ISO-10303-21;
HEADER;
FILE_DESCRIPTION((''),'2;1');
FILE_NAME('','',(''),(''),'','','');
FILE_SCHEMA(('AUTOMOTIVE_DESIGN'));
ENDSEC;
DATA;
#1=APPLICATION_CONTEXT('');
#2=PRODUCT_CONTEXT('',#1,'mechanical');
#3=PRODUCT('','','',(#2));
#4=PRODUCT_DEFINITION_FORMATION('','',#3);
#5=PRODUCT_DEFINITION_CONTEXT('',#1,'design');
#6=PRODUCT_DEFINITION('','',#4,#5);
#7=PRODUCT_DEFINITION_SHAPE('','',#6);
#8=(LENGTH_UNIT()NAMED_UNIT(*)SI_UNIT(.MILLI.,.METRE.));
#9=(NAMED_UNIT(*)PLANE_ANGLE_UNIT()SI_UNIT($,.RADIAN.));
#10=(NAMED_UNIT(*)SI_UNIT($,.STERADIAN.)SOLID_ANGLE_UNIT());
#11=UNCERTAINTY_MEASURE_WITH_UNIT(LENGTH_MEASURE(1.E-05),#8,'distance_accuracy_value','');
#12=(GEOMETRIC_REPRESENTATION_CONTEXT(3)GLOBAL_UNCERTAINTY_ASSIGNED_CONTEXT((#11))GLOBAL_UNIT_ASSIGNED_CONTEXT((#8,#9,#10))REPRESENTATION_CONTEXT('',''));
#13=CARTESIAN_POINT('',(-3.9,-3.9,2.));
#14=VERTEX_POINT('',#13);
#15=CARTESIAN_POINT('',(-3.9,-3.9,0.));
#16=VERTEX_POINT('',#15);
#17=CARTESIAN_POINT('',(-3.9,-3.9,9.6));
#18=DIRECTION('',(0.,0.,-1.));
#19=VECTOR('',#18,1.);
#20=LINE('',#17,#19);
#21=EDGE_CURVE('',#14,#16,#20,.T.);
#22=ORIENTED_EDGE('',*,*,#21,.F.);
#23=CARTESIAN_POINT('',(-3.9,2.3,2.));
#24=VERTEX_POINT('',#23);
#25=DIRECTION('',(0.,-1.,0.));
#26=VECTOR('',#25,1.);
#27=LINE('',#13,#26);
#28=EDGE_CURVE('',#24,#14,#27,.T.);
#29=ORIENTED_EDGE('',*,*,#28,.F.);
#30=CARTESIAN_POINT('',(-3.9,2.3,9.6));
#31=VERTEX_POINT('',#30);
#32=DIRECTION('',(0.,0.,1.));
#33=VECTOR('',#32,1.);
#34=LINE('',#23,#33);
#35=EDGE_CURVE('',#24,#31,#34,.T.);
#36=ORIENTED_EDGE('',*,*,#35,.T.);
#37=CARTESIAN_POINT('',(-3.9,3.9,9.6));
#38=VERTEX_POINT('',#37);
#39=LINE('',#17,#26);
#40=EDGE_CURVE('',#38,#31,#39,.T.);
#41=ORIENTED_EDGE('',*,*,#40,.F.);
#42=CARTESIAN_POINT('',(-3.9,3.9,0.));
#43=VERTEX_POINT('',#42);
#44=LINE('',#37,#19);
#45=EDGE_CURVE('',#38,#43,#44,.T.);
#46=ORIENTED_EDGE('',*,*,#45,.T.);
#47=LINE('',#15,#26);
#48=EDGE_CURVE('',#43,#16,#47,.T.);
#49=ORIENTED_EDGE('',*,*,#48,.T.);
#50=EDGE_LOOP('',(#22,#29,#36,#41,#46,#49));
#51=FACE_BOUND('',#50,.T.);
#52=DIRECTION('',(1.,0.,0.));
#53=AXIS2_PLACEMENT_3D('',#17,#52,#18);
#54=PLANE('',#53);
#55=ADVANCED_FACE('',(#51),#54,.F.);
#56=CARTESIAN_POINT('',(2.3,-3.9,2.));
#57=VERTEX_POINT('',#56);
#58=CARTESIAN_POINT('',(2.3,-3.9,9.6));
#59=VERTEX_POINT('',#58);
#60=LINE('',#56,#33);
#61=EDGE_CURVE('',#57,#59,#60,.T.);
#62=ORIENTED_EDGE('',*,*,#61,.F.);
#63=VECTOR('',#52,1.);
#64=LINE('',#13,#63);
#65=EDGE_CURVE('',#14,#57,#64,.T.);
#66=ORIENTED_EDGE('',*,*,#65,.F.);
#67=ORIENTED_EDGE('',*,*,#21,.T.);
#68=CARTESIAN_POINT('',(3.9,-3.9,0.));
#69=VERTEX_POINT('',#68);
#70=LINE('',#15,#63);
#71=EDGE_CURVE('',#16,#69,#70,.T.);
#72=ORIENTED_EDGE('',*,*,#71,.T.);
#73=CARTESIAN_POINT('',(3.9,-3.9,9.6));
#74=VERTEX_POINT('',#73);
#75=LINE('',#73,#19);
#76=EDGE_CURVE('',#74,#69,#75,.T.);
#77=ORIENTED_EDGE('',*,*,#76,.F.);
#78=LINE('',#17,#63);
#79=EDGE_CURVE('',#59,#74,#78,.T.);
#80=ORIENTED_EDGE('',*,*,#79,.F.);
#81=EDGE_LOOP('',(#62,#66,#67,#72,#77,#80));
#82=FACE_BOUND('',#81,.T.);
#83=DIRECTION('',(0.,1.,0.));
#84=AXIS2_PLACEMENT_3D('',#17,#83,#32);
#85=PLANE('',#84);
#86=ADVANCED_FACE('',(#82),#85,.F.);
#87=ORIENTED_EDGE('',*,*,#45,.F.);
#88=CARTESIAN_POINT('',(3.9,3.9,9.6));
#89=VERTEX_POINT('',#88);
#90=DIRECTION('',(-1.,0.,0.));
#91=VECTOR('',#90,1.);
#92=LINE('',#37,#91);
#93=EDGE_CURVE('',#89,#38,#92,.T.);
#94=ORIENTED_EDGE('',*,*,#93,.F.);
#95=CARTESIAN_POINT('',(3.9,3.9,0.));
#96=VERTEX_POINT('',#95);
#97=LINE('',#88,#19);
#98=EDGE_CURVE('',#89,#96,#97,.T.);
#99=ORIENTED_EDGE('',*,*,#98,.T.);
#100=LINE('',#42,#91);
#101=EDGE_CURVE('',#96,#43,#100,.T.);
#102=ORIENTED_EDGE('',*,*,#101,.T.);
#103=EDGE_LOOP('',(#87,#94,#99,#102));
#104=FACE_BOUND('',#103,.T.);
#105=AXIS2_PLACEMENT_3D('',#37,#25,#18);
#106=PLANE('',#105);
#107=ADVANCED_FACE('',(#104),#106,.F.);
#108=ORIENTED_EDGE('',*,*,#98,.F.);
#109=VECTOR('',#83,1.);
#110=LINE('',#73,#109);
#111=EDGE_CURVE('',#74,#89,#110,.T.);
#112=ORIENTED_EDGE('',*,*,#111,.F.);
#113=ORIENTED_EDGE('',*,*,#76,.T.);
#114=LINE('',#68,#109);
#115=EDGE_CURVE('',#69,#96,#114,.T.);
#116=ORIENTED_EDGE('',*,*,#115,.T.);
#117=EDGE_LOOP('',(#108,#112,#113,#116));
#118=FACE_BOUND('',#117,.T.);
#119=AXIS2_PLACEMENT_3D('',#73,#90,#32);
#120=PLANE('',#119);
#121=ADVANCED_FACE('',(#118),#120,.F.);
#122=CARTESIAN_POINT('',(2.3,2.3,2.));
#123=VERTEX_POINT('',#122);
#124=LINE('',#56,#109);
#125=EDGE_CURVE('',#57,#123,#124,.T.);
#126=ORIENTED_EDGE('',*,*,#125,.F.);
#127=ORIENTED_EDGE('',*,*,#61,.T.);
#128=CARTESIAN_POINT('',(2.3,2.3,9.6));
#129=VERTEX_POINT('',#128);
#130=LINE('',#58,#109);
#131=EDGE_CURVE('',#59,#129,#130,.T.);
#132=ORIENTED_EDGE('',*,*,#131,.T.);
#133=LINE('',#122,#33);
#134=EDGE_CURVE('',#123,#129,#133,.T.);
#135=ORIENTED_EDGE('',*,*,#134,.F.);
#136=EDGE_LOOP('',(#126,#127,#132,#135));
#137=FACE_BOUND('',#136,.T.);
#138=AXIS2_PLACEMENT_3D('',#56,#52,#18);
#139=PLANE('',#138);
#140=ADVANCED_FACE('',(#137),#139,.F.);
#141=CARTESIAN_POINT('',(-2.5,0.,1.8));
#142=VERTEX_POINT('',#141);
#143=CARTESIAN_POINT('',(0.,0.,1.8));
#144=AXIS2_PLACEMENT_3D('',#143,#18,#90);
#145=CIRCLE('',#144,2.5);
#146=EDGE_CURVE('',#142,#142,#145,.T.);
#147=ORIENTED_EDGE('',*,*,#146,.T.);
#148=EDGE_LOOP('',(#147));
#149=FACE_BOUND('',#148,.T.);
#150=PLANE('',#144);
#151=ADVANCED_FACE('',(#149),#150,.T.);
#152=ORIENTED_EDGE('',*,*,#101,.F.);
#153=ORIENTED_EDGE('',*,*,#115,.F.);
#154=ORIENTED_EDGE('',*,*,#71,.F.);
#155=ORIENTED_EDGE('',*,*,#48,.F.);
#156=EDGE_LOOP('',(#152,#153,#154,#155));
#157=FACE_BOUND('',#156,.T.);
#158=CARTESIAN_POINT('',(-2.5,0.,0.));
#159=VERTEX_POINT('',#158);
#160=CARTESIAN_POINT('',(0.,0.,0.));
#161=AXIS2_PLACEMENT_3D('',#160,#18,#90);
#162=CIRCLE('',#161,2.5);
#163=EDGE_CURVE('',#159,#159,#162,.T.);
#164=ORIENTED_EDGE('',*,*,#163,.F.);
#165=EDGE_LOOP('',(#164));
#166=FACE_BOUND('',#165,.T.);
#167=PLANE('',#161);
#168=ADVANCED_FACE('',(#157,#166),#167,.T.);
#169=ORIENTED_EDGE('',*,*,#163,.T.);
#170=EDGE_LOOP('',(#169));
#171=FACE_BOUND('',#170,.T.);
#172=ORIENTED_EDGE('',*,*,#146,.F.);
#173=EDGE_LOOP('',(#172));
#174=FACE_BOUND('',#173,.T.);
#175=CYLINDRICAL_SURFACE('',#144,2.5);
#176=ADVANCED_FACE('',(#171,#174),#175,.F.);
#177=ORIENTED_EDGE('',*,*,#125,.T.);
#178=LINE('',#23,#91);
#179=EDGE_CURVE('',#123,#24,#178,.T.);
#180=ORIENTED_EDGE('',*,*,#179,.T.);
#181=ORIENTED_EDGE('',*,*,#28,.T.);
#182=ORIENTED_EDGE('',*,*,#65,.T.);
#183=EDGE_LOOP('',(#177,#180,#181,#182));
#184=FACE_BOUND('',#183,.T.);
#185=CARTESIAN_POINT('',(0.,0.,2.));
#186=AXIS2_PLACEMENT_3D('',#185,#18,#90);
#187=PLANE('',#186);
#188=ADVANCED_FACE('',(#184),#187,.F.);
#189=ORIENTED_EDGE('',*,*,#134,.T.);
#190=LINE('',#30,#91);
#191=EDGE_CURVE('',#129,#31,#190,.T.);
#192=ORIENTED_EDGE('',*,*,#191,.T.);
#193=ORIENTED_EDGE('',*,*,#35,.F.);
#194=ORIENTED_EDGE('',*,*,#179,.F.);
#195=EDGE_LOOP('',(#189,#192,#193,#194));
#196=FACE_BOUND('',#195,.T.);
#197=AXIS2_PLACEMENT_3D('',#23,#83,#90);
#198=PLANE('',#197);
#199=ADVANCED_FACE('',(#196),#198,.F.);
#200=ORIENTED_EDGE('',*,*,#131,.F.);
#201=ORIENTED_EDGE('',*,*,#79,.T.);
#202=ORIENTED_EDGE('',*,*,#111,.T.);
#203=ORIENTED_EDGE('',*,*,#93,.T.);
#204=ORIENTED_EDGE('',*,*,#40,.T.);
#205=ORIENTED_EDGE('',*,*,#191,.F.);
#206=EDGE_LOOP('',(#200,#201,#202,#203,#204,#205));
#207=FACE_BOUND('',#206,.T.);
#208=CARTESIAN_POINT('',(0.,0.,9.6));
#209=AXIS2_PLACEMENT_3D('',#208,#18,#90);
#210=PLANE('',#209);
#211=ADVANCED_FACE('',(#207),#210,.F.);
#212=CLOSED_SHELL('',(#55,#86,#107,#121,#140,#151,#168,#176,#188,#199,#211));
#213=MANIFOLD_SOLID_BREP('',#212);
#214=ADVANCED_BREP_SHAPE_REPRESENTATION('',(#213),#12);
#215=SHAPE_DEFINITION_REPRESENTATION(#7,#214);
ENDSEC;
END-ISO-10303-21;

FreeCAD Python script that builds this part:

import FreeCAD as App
import Part
import Sketcher
from FreeCAD import Vector
Q = App.Units.Quantity


def add_polygon(sketch, points):
    """Adds a closed chain of lines whose ends are joined by coincident constraints."""
    first, n = sketch.GeometryCount, len(points)
    for a, b in zip(points, points[1:] + points[:1]):
        sketch.addGeometry(Part.LineSegment(App.Vector(*a, 0), App.Vector(*b, 0)), False)
    for i in range(n):
        sketch.addConstraint(Sketcher.Constraint("Coincident", first + i, 2, first + (i + 1) % n, 1))

doc = App.newDocument("Part")
body = doc.addObject("PartDesign::Body", "Body")

# Sketch on XY plane
sketch1 = body.newObject("Sketcher::SketchObject", "Sketch")
sketch1.AttachmentSupport = (doc.getObject("XY_Plane"), [""])
sketch1.MapMode = "FlatFace"
add_polygon(sketch1, [(-4, 4), (-4, -4), (4, -4), (4, 4)])  # lines 0-3
sketch1.addConstraint([
    Sketcher.Constraint("Vertical", 0),
    Sketcher.Constraint("Horizontal", 1),
    Sketcher.Constraint("Vertical", 2),
    Sketcher.Constraint("Horizontal", 3),
    Sketcher.Constraint("Symmetric", 0, 2, 2, 2, -1, 1),
    Sketcher.Constraint("Equal", 3, 0),
    Sketcher.Constraint("DistanceX", 1, 1, 1, 2, Q("7.8 mm")),
])
pad1 = body.newObject("PartDesign::Pad", "Pad")
pad1.Profile = sketch1
pad1.Length = 9.6

# Sketch on XY plane
sketch2 = body.newObject("Sketcher::SketchObject", "Sketch001")
sketch2.AttachmentSupport = (doc.getObject("XY_Plane"), [""])
sketch2.MapMode = "FlatFace"
sketch2.AttachmentOffset = App.Placement(Vector(0, 0, 9.6), App.Rotation())
add_polygon(sketch2, [(-4, 2), (-4, -4), (2, -4), (2, 2)])  # lines 0-3
sketch2.addConstraint([
    Sketcher.Constraint("Vertical", 0),
    Sketcher.Constraint("Horizontal", 1),
    Sketcher.Constraint("Vertical", 2),
    Sketcher.Constraint("Horizontal", 3),
    Sketcher.Constraint("Equal", 3, 0),
    Sketcher.Constraint("DistanceX", 1, 1, 1, 2, Q("6.2 mm")),
    Sketcher.Constraint("DistanceX", 0, 2, -1, 1, Q("3.9 mm")),
    Sketcher.Constraint("DistanceY", 0, 2, -1, 1, Q("3.9 mm")),
])
pocket1 = body.newObject("PartDesign::Pocket", "Pocket")
pocket1.Profile = sketch2
pocket1.Length = 7.6

# Sketch on XY plane
sketch3 = body.newObject("Sketcher::SketchObject", "Sketch002")
sketch3.AttachmentSupport = (doc.getObject("XY_Plane"), [""])
sketch3.MapMode = "FlatFace"
sketch3.addGeometry(Part.Circle(Vector(0, 0, 0), Vector(0, 0, 1), 2.5), False)
sketch3.addConstraint([
    Sketcher.Constraint("Coincident", 0, 3, -1, 1),
    Sketcher.Constraint("Diameter", 0, Q("5 mm")),
])
pocket2 = body.newObject("PartDesign::Pocket", "Pocket001")
pocket2.Profile = sketch3
pocket2.Length = 1.8
pocket2.Reversed = True

doc.recompute()
